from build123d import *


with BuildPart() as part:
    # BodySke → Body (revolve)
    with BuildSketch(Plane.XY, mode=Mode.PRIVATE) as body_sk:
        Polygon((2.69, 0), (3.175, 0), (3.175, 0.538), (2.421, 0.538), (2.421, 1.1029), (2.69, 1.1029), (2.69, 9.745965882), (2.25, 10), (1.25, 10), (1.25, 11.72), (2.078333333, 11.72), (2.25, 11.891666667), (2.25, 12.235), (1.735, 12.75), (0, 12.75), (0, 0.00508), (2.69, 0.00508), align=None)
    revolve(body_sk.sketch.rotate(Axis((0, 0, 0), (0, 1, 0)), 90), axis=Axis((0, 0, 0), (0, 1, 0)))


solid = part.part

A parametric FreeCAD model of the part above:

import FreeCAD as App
import Part
import Sketcher
from FreeCAD import Vector
Q = App.Units.Quantity


def add_polygon(sketch, points):
    """Adds a closed chain of lines whose ends are joined by coincident constraints."""
    first, n = sketch.GeometryCount, len(points)
    for a, b in zip(points, points[1:] + points[:1]):
        sketch.addGeometry(Part.LineSegment(App.Vector(*a, 0), App.Vector(*b, 0)), False)
    for i in range(n):
        sketch.addConstraint(Sketcher.Constraint("Coincident", first + i, 2, first + (i + 1) % n, 1))

doc = App.newDocument("Part")
params = doc.addObject("Spreadsheet::Sheet", "Params")
for row, (alias, value) in enumerate([
    ("sketch1_width", "1 mm"),
    ("sketch1_width2", "2.69 mm"),
    ("sketch1_height", "1.72 mm"),
    ("revolution_angle", "360 deg"),
], start=1):
    params.set(f"A{row}", alias)
    params.set(f"B{row}", "=" + value)
    params.setAlias(f"B{row}", alias)

body = doc.addObject("PartDesign::Body", "Body")

sketch1 = body.newObject("Sketcher::SketchObject", "Sketch")
sketch1.AttachmentSupport = (doc.getObject("XY_Plane"), [""])
sketch1.MapMode = "FlatFace"
add_polygon(sketch1, [(2.69, 0), (3.175, 0), (3.175, 0.538), (2.421, 0.538), (2.421, 1.1029), (2.69, 1.1029), (2.69, 9.745966), (2.25, 10), (1.25, 10), (1.25, 11.72), (2.078333, 11.72), (2.25, 11.891667), (2.25, 12.235), (1.735, 12.75), (0, 12.75), (0, 0.00508), (2.69, 0.00508)])
sketch1.addConstraint([
    Sketcher.Constraint("Horizontal", 0),
    Sketcher.Constraint("Vertical", 1),
    Sketcher.Constraint("Horizontal", 2),
    Sketcher.Constraint("Vertical", 3),
    Sketcher.Constraint("Horizontal", 4),
    Sketcher.Constraint("Vertical", 5),
    Sketcher.Constraint("Horizontal", 7),
    Sketcher.Constraint("Vertical", 8),
    Sketcher.Constraint("Horizontal", 9),
    Sketcher.Constraint("Vertical", 11),
    Sketcher.Constraint("Horizontal", 13),
    Sketcher.Constraint("Vertical", 14),
    Sketcher.Constraint("Horizontal", 15),
    Sketcher.Constraint("Vertical", 16),
    Sketcher.Constraint("PointOnObject", 0, 2, -1),
    Sketcher.Constraint("PointOnObject", 13, 2, -2),
    Sketcher.Constraint("Perpendicular", 10, 12),
    Sketcher.Constraint("Vertical", 6, 2, 10, 2),
    Sketcher.Constraint("Vertical", 5, 2, 15, 2),
    Sketcher.Constraint("DistanceX", 7, 2, 7, 1, 1.0),
    Sketcher.Constraint("Angle", 6, Q("150 deg")),
    Sketcher.Constraint("Angle", 10, Q("45 deg")),
    Sketcher.Constraint("DistanceY", -1, 1, 6, 2, 10.0),
    Sketcher.Constraint("DistanceX", 15, 1, 15, 2, 2.69),
    Sketcher.Constraint("DistanceY", 8, 1, 8, 2, 1.72),
    Sketcher.Constraint("DistanceX", 0, 1, 0, 2, 0.485),
    Sketcher.Constraint("DistanceX", 2, 2, 2, 1, 0.754),
    Sketcher.Constraint("DistanceX", 13, 2, 13, 1, 1.735),
    Sketcher.Constraint("DistanceY", 1, 1, 1, 2, 0.538),
    Sketcher.Constraint("DistanceX", -1, 1, 6, 2, 2.25),
    Sketcher.Constraint("DistanceY", -1, 1, 12, 2, 12.75),
    Sketcher.Constraint("DistanceY", 3, 1, 3, 2, 0.5649),
    Sketcher.Constraint("DistanceY", 14, 2, 14, 1, 12.74492),
    Sketcher.Constraint("DistanceY", 5, 2, 10, 2, 2.145701),
])
sketch1.setExpression("Constraints[36]", "Params.sketch1_width")
sketch1.setExpression("Constraints[40]", "Params.sketch1_width2")
sketch1.setExpression("Constraints[41]", "Params.sketch1_height")
revolution = body.newObject("PartDesign::Revolution", "Revolution")
revolution.Profile = sketch1
revolution.ReferenceAxis = (sketch1, ["V_Axis"])
revolution.setExpression("Angle", "Params.revolution_angle")

doc.recompute()
